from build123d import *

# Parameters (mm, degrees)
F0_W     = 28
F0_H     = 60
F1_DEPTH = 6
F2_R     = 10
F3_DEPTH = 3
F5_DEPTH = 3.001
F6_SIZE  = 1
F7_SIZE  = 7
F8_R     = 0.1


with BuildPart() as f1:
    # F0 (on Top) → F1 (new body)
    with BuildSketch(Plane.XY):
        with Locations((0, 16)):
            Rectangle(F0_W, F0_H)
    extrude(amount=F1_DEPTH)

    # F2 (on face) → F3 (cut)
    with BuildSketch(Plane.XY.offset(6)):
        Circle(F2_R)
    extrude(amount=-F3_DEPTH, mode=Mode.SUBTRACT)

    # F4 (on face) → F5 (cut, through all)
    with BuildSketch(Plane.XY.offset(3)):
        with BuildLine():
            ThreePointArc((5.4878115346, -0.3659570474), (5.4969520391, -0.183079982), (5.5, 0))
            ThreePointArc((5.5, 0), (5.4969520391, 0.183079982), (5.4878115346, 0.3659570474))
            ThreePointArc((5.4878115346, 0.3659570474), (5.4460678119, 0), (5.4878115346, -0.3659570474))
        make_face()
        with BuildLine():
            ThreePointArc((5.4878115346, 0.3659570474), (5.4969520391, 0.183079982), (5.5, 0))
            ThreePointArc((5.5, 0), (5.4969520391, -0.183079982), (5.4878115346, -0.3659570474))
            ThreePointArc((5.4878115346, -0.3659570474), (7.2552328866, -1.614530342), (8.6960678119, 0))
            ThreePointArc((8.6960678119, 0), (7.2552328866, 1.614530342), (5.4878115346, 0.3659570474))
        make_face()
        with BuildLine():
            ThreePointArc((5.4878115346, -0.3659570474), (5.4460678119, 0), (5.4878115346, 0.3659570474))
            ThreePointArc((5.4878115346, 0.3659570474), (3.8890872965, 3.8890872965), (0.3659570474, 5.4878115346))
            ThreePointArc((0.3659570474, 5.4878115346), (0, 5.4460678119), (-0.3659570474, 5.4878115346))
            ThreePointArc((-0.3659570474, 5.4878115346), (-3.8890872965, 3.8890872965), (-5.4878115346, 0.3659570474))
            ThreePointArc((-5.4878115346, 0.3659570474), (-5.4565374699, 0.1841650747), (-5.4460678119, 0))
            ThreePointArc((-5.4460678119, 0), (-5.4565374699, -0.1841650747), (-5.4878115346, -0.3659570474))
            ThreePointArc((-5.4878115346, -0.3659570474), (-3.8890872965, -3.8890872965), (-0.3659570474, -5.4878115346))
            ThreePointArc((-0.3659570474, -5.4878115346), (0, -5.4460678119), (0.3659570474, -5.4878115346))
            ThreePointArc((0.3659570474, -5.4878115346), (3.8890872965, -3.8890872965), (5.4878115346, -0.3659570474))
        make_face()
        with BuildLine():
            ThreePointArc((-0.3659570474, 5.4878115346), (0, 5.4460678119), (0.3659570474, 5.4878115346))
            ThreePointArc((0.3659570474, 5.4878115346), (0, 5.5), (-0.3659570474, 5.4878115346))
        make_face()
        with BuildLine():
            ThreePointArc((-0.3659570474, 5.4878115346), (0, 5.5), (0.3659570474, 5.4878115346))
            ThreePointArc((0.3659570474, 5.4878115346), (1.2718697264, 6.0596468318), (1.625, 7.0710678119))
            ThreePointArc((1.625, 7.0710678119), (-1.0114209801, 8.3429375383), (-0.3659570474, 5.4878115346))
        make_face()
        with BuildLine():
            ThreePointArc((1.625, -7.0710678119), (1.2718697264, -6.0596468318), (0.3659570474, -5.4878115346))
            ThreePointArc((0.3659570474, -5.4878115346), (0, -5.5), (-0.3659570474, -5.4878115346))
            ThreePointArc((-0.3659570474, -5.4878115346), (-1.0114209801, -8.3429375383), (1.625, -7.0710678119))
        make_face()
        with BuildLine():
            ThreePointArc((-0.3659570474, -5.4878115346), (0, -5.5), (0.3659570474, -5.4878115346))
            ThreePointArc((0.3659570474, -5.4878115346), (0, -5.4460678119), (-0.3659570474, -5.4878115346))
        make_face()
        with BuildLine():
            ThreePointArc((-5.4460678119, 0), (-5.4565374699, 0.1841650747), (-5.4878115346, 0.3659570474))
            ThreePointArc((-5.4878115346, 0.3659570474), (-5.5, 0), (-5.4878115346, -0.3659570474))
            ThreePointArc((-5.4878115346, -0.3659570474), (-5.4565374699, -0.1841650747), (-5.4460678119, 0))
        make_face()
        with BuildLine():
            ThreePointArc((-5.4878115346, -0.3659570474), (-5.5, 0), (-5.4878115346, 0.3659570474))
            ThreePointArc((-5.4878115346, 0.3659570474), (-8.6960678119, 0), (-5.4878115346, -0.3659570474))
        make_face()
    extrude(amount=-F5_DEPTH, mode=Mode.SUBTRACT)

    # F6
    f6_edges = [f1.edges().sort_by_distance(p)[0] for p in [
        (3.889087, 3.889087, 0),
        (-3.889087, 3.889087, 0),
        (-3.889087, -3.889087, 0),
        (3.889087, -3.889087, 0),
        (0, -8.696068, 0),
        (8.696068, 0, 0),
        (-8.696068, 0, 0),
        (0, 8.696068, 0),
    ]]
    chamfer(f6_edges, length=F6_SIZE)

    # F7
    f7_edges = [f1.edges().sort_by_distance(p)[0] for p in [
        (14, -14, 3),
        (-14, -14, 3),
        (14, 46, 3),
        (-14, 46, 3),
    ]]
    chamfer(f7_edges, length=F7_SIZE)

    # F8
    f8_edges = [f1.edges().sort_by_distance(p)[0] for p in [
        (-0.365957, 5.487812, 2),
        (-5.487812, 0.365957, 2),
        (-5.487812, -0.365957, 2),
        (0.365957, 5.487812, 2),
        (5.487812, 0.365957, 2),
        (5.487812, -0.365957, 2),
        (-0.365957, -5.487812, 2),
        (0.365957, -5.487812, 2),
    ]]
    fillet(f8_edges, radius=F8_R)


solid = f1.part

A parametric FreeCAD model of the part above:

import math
import FreeCAD as App
import Part
import Sketcher
Q = App.Units.Quantity


def edges_at(feature, points):
    """Names of the edges that pass closest to the given points."""
    edges = feature.Shape.Edges
    near = lambda p: min(range(len(edges)), key=lambda i: edges[i].distToShape(Part.Vertex(*p))[0])
    return sorted({f"Edge{near(p) + 1}" for p in points})

doc = App.newDocument("Part")
body = doc.addObject("PartDesign::Body", "Body")

# Sketch on XY plane
sketch1 = body.newObject("Sketcher::SketchObject", "Sketch")
sketch1.AttachmentSupport = (doc.getObject("XY_Plane"), [""])
sketch1.MapMode = "FlatFace"
sketch1.addGeometry([
    Part.LineSegment(App.Vector(-14, 46, 0), App.Vector(-14, -14, 0)),
    Part.LineSegment(App.Vector(-14, -14, 0), App.Vector(14, -14, 0)),
    Part.LineSegment(App.Vector(14, -14, 0), App.Vector(14, 46, 0)),
    Part.LineSegment(App.Vector(14, 46, 0), App.Vector(-14, 46, 0)),
], False)
sketch1.addConstraint([
    Sketcher.Constraint("Coincident", 0, 2, 1, 1),
    Sketcher.Constraint("Coincident", 1, 2, 2, 1),
    Sketcher.Constraint("Coincident", 2, 2, 3, 1),
    Sketcher.Constraint("Coincident", 3, 2, 0, 1),
    Sketcher.Constraint("Vertical", 0),
    Sketcher.Constraint("Horizontal", 1),
    Sketcher.Constraint("Vertical", 2),
    Sketcher.Constraint("Horizontal", 3),
    Sketcher.Constraint("DistanceX", 1, 1, 1, 2, Q("28 mm")),
    Sketcher.Constraint("DistanceY", 0, 2, 0, 1, Q("60 mm")),
    Sketcher.Constraint("DistanceX", 0, 2, -1, 1, Q("14 mm")),
    Sketcher.Constraint("DistanceY", 0, 2, -1, 1, Q("14 mm")),
])
pad1 = body.newObject("PartDesign::Pad", "Pad")
pad1.Profile = sketch1
pad1.Length = 6

# Sketch on XY plane
sketch2 = body.newObject("Sketcher::SketchObject", "Sketch001")
sketch2.AttachmentSupport = (doc.getObject("XY_Plane"), [""])
sketch2.MapMode = "FlatFace"
sketch2.AttachmentOffset = App.Placement(App.Vector(0, 0, 6), App.Rotation())
sketch2.addGeometry(Part.Circle(App.Vector(0, 0, 0), App.Vector(0, 0, 1), 10), False)
sketch2.addConstraint([
    Sketcher.Constraint("Coincident", 0, 3, -1, 1),
    Sketcher.Constraint("Diameter", 0, Q("20 mm")),
])
pocket1 = body.newObject("PartDesign::Pocket", "Pocket")
pocket1.Profile = sketch2
pocket1.Length = 3

# Sketch on XY plane
sketch3 = body.newObject("Sketcher::SketchObject", "Sketch002")
sketch3.AttachmentSupport = (doc.getObject("XY_Plane"), [""])
sketch3.MapMode = "FlatFace"
sketch3.AttachmentOffset = App.Placement(App.Vector(0, 0, 3), App.Rotation())
sketch3.addGeometry([
    Part.ArcOfCircle(Part.Circle(App.Vector(7.1, 0, 0), App.Vector(0, 0, 1), 1.6), math.radians(-167), math.radians(0)),  # 0
    Part.ArcOfCircle(Part.Circle(App.Vector(7.1, 0, 0), App.Vector(0, 0, 1), 1.6), math.radians(0), math.radians(167)),  # 1
    Part.ArcOfCircle(Part.Circle(App.Vector(0, 0, 0), App.Vector(0, 0, 1), 5.5), math.radians(4), math.radians(86)),  # 2
    Part.ArcOfCircle(Part.Circle(App.Vector(0, 7.1, 0), App.Vector(0, 0, 1), 1.6), math.radians(-77), math.radians(0)),  # 3
    Part.ArcOfCircle(Part.Circle(App.Vector(0, 7.1, 0), App.Vector(0, 0, 1), 1.6), math.radians(0), math.radians(257)),  # 4
    Part.ArcOfCircle(Part.Circle(App.Vector(0, 0, 0), App.Vector(0, 0, 1), 5.5), math.radians(94), math.radians(176)),  # 5
    Part.ArcOfCircle(Part.Circle(App.Vector(-7.1, 0, 0), App.Vector(0, 0, 1), 1.6), math.radians(13), math.radians(347)),  # 6
    Part.ArcOfCircle(Part.Circle(App.Vector(0, 0, 0), App.Vector(0, 0, 1), 5.5), math.radians(-176), math.radians(-94)),  # 7
    Part.ArcOfCircle(Part.Circle(App.Vector(0, -7.1, 0), App.Vector(0, 0, 1), 1.6), math.radians(103), math.radians(360)),  # 8
    Part.ArcOfCircle(Part.Circle(App.Vector(0, -7.1, 0), App.Vector(0, 0, 1), 1.6), math.radians(0), math.radians(77)),  # 9
    Part.ArcOfCircle(Part.Circle(App.Vector(0, 0, 0), App.Vector(0, 0, 1), 5.5), math.radians(-86), math.radians(-4)),  # 10
], False)
sketch3.addConstraint([
    Sketcher.Constraint("Tangent", 0, 2, 1, 1),
    Sketcher.Constraint("Coincident", 1, 2, 2, 1),
    Sketcher.Constraint("Coincident", 2, 2, 3, 1),
    Sketcher.Constraint("Tangent", 3, 2, 4, 1),
    Sketcher.Constraint("Coincident", 4, 2, 5, 1),
    Sketcher.Constraint("Coincident", 5, 2, 6, 1),
    Sketcher.Constraint("Coincident", 6, 2, 7, 1),
    Sketcher.Constraint("Coincident", 7, 2, 8, 1),
    Sketcher.Constraint("Tangent", 8, 2, 9, 1),
    Sketcher.Constraint("Coincident", 9, 2, 10, 1),
    Sketcher.Constraint("Coincident", 10, 2, 0, 1),
    Sketcher.Constraint("Coincident", 2, 3, -1, 1),
    Sketcher.Constraint("Coincident", 5, 3, -1, 1),
    Sketcher.Constraint("Coincident", 7, 3, -1, 1),
    Sketcher.Constraint("Coincident", 10, 3, -1, 1),
    Sketcher.Constraint("Equal", 0, 1),
    Sketcher.Constraint("Equal", 1, 3),
    Sketcher.Constraint("Equal", 3, 4),
    Sketcher.Constraint("Equal", 2, 5),
    Sketcher.Constraint("Equal", 4, 6),
    Sketcher.Constraint("Equal", 5, 7),
    Sketcher.Constraint("Equal", 6, 8),
    Sketcher.Constraint("Equal", 8, 9),
    Sketcher.Constraint("Equal", 7, 10),
    Sketcher.Constraint("Symmetric", 0, 3, 6, 3, -1, 1),
    Sketcher.Constraint("Symmetric", 3, 3, 8, 3, -1, 1),
    Sketcher.Constraint("Symmetric", 3, 2, 8, 2, -1),
    Sketcher.Constraint("PointOnObject", 0, 3, -1),
    Sketcher.Constraint("PointOnObject", 0, 2, -1),
    Sketcher.Constraint("Horizontal", 4, 3, 3, 2),
    Sketcher.Constraint("Radius", 2, Q("5.5 mm")),
    Sketcher.Constraint("Radius", 0, Q("1.625 mm")),
    Sketcher.Constraint("DistanceX", -1, 1, 1, 2, Q("5.487812 mm")),
    Sketcher.Constraint("DistanceY", -1, 1, 2, 2, Q("5.487812 mm")),
])
pocket2 = body.newObject("PartDesign::Pocket", "Pocket001")
pocket2.Profile = sketch3
pocket2.Type = "ThroughAll"
doc.recompute()

chamfer = body.newObject("PartDesign::Chamfer", "Chamfer")
chamfer.Base = (pocket2, edges_at(pocket2, [
    (3.889, 3.889, 0),
    (-3.889, 3.889, 0),
    (-3.889, -3.889, 0),
    (3.889, -3.889, 0),
    (-1.011, -8.343, 0),
    (7.255, -1.615, 0),
    (-8.696, 0, 0),
    (-1.011, 8.343, 0),
]))
chamfer.Size = 1
doc.recompute()

chamfer2 = body.newObject("PartDesign::Chamfer", "Chamfer001")
chamfer2.Base = (chamfer, edges_at(chamfer, [
    (14, -14, 3),
    (-14, -14, 3),
    (14, 46, 3),
    (-14, 46, 3),
]))
chamfer2.Size = 7
doc.recompute()

fillet = body.newObject("PartDesign::Fillet", "Fillet")
fillet.Base = (chamfer2, edges_at(chamfer2, [
    (-0.366, 5.488, 2),
    (-5.488, 0.366, 2),
    (-5.488, -0.366, 2),
    (0.366, 5.488, 2),
    (5.488, 0.366, 2),
    (5.488, -0.366, 2),
    (-0.366, -5.488, 2),
    (0.366, -5.488, 2),
]))
fillet.Radius = 0.1

doc.recompute()
